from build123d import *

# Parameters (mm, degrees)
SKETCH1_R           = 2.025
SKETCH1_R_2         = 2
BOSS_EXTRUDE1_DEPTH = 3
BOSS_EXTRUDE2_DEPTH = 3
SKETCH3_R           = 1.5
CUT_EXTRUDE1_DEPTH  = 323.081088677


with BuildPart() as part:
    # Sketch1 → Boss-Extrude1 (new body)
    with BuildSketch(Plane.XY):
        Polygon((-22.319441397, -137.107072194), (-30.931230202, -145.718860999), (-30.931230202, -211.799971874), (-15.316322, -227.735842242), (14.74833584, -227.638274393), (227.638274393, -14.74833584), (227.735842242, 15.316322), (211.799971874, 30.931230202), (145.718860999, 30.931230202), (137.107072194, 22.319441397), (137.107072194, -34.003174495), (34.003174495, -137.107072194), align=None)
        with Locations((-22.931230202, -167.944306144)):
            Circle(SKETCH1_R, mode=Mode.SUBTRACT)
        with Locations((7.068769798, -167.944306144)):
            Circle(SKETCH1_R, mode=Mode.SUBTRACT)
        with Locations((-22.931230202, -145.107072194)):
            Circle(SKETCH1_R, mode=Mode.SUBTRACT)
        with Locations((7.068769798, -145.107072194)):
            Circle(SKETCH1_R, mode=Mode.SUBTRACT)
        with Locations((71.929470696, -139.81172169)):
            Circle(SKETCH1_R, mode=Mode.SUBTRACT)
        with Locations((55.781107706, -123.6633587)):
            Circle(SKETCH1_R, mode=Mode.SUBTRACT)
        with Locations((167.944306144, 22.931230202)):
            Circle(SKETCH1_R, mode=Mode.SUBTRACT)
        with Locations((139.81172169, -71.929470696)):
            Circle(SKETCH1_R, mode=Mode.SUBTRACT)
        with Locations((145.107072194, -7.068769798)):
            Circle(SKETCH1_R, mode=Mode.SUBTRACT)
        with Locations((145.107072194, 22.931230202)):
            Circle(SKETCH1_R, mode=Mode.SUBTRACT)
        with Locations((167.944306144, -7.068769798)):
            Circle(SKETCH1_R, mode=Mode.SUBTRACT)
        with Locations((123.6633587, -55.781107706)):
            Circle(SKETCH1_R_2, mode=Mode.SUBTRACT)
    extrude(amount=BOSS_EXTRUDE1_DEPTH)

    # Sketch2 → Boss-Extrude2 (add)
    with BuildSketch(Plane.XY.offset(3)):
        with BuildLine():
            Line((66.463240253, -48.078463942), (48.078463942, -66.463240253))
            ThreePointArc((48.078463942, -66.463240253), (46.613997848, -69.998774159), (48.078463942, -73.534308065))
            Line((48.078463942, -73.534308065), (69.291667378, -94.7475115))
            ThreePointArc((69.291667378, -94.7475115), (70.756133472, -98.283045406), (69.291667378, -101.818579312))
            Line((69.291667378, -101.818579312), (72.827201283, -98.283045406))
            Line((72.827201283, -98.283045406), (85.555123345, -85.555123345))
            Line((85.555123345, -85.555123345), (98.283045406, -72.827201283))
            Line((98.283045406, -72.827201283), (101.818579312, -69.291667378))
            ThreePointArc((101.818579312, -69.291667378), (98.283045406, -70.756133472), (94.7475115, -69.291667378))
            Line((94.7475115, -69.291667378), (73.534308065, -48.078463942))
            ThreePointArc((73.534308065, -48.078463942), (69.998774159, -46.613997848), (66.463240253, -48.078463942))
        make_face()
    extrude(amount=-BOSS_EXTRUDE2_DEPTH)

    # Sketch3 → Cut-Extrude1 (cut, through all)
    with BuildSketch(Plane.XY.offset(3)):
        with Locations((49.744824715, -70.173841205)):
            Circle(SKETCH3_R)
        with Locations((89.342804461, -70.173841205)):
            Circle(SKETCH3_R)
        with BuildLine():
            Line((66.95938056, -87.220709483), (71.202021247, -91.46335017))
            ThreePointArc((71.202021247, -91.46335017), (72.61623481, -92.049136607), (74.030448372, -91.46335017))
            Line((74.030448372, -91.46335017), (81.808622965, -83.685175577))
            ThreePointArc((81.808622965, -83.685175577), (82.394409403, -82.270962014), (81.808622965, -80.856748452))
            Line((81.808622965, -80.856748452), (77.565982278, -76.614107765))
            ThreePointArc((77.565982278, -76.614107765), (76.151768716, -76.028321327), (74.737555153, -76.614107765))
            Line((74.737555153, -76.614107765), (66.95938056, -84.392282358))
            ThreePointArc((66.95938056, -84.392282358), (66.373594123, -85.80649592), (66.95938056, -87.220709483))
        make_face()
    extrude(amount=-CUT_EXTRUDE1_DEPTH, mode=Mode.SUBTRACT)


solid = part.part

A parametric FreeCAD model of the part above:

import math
import FreeCAD as App
import Part
import Sketcher
from FreeCAD import Vector
Q = App.Units.Quantity

doc = App.newDocument("Part")
body = doc.addObject("PartDesign::Body", "Body")

# Sketch on XY plane
sketch1 = body.newObject("Sketcher::SketchObject", "Sketch")
sketch1.AttachmentSupport = (doc.getObject("XY_Plane"), [""])
sketch1.MapMode = "FlatFace"
sketch1.addGeometry([
    Part.LineSegment(Vector(-22.3, -137.1, 0), Vector(-30.9, -145.7, 0)),  # 0
    Part.LineSegment(Vector(-30.9, -145.7, 0), Vector(-30.9, -211.8, 0)),  # 1
    Part.LineSegment(Vector(-30.9, -211.8, 0), Vector(-15.3, -227.7, 0)),  # 2
    Part.LineSegment(Vector(-15.3, -227.7, 0), Vector(14.7, -227.6, 0)),  # 3
    Part.LineSegment(Vector(14.7, -227.6, 0), Vector(227.6, -14.7, 0)),  # 4
    Part.LineSegment(Vector(227.6, -14.7, 0), Vector(227.7, 15.3, 0)),  # 5
    Part.LineSegment(Vector(227.7, 15.3, 0), Vector(211.8, 30.9, 0)),  # 6
    Part.LineSegment(Vector(211.8, 30.9, 0), Vector(145.7, 30.9, 0)),  # 7
    Part.LineSegment(Vector(145.7, 30.9, 0), Vector(137.1, 22.3, 0)),  # 8
    Part.LineSegment(Vector(137.1, 22.3, 0), Vector(137.1, -34, 0)),  # 9
    Part.LineSegment(Vector(137.1, -34, 0), Vector(34, -137.1, 0)),  # 10
    Part.LineSegment(Vector(34, -137.1, 0), Vector(-22.3, -137.1, 0)),  # 11
    Part.Circle(Vector(-22.9, -167.9, 0), Vector(0, 0, 1), 2),  # 12
    Part.Circle(Vector(7.1, -167.9, 0), Vector(0, 0, 1), 2),  # 13
    Part.Circle(Vector(-22.9, -145.1, 0), Vector(0, 0, 1), 2),  # 14
    Part.Circle(Vector(7.1, -145.1, 0), Vector(0, 0, 1), 2),  # 15
    Part.Circle(Vector(71.9, -139.8, 0), Vector(0, 0, 1), 2),  # 16
    Part.Circle(Vector(55.8, -123.7, 0), Vector(0, 0, 1), 2),  # 17
    Part.Circle(Vector(139.8, -71.9, 0), Vector(0, 0, 1), 2),  # 18
    Part.Circle(Vector(123.7, -55.8, 0), Vector(0, 0, 1), 2),  # 19
    Part.Circle(Vector(145.1, -7.1, 0), Vector(0, 0, 1), 2),  # 20
    Part.Circle(Vector(167.9, -7.1, 0), Vector(0, 0, 1), 2),  # 21
    Part.Circle(Vector(145.1, 22.9, 0), Vector(0, 0, 1), 2),  # 22
    Part.Circle(Vector(167.9, 22.9, 0), Vector(0, 0, 1), 2),  # 23
], False)
sketch1.addConstraint([
    Sketcher.Constraint("Coincident", 0, 2, 1, 1),
    Sketcher.Constraint("Coincident", 1, 2, 2, 1),
    Sketcher.Constraint("Coincident", 2, 2, 3, 1),
    Sketcher.Constraint("Coincident", 3, 2, 4, 1),
    Sketcher.Constraint("Coincident", 4, 2, 5, 1),
    Sketcher.Constraint("Coincident", 5, 2, 6, 1),
    Sketcher.Constraint("Coincident", 6, 2, 7, 1),
    Sketcher.Constraint("Coincident", 7, 2, 8, 1),
    Sketcher.Constraint("Coincident", 8, 2, 9, 1),
    Sketcher.Constraint("Coincident", 9, 2, 10, 1),
    Sketcher.Constraint("Coincident", 10, 2, 11, 1),
    Sketcher.Constraint("Coincident", 11, 2, 0, 1),
    Sketcher.Constraint("Vertical", 1),
    Sketcher.Constraint("Horizontal", 7),
    Sketcher.Constraint("Vertical", 9),
    Sketcher.Constraint("Horizontal", 11),
    Sketcher.Constraint("Equal", 12, 13),
    Sketcher.Constraint("Equal", 13, 14),
    Sketcher.Constraint("Equal", 14, 15),
    Sketcher.Constraint("Equal", 15, 16),
    Sketcher.Constraint("Equal", 16, 17),
    Sketcher.Constraint("Equal", 17, 18),
    Sketcher.Constraint("Equal", 18, 20),
    Sketcher.Constraint("Equal", 20, 21),
    Sketcher.Constraint("Equal", 21, 22),
    Sketcher.Constraint("Equal", 22, 23),
    Sketcher.Constraint("Parallel", 0, 4),
    Sketcher.Constraint("Parallel", 4, 8),
    Sketcher.Constraint("Parallel", 8, 10),
    Sketcher.Constraint("Horizontal", 12, 3, 13, 3),
    Sketcher.Constraint("Horizontal", 14, 3, 15, 3),
    Sketcher.Constraint("Horizontal", 20, 3, 21, 3),
    Sketcher.Constraint("Horizontal", 22, 3, 23, 3),
    Sketcher.Constraint("Vertical", 12, 3, 14, 3),
    Sketcher.Constraint("Vertical", 13, 3, 15, 3),
    Sketcher.Constraint("Vertical", 20, 3, 22, 3),
    Sketcher.Constraint("Vertical", 21, 3, 23, 3),
    Sketcher.Constraint("Equal", 7, 1),
    Sketcher.Constraint("Equal", 11, 9),
    Sketcher.Constraint("Equal", 3, 5),
    Sketcher.Constraint("Equal", 2, 6),
    Sketcher.Constraint("Equal", 0, 8),
    Sketcher.Constraint("Diameter", 19, 4.0),
    Sketcher.Constraint("Diameter", 12, 4.05),
    Sketcher.Constraint("Angle", 0, Q("-135 deg")),
    Sketcher.Constraint("DistanceX", 12, 3, 13, 3, 30.0),
    Sketcher.Constraint("DistanceY", 20, 3, 22, 3, 30.0),
    Sketcher.Constraint("DistanceX", 0, 2, 14, 3, 8.0),
    Sketcher.Constraint("DistanceY", 23, 3, 6, 2, 8.0),
    Sketcher.Constraint("DistanceX", 8, 2, 22, 3, 8.0),
    Sketcher.Constraint("DistanceY", 15, 3, 10, 2, 8.0),
    Sketcher.Constraint("DistanceX", 7, 2, 7, 1, 66.081111),
    Sketcher.Constraint("DistanceX", 15, 3, 16, 3, 64.860701),
    Sketcher.Constraint("DistanceY", 15, 3, 18, 3, 73.177601),
    Sketcher.Constraint("DistanceY", 13, 3, 19, 3, 112.163198),
    Sketcher.Constraint("DistanceY", 18, 3, 20, 3, 64.860701),
    Sketcher.Constraint("DistanceX", 17, 3, 21, 3, 112.163198),
    Sketcher.Constraint("DistanceY", 1, 2, 14, 3, 66.6929),
    Sketcher.Constraint("Distance", 4, 301.071838),
    Sketcher.Constraint("Distance", 10, 145.81093),
    Sketcher.Constraint("DistanceX", 12, 3, -1, 1, 22.93123),
    Sketcher.Constraint("DistanceY", 16, 3, -1, 1, 139.811722),
    Sketcher.Constraint("DistanceY", 17, 3, -1, 1, 123.663359),
    Sketcher.Constraint("DistanceX", -1, 1, 18, 3, 139.811722),
    Sketcher.Constraint("DistanceY", 18, 3, -1, 1, 71.929471),
    Sketcher.Constraint("DistanceX", -1, 1, 19, 3, 123.663359),
    Sketcher.Constraint("DistanceX", 17, 3, 19, 3, 67.882251),
    Sketcher.Constraint("DistanceY", 17, 3, 19, 3, 67.882251),
    Sketcher.Constraint("DistanceX", 1, 2, 2, 2, 15.614908),
    Sketcher.Constraint("DistanceY", 2, 2, 1, 2, 15.93587),
    Sketcher.Constraint("DistanceY", 3, 2, 13, 3, 59.693968),
    Sketcher.Constraint("DistanceX", 21, 3, 4, 2, 59.693968),
])
pad1 = body.newObject("PartDesign::Pad", "Pad")
pad1.Profile = sketch1
pad1.Length = 3

# Sketch on XY plane
sketch2 = body.newObject("Sketcher::SketchObject", "Sketch001")
sketch2.AttachmentSupport = (doc.getObject("XY_Plane"), [""])
sketch2.MapMode = "FlatFace"
sketch2.AttachmentOffset = App.Placement(Vector(0, 0, 3), App.Rotation())
sketch2.addGeometry([
    Part.LineSegment(Vector(66.5, -48.1, 0), Vector(48.1, -66.5, 0)),  # 0
    Part.ArcOfCircle(Part.Circle(Vector(51.6, -70, 0), Vector(0, 0, 1), 5), math.radians(135), math.radians(225)),  # 1
    Part.LineSegment(Vector(48.1, -73.5, 0), Vector(69.3, -94.7, 0)),  # 2
    Part.ArcOfCircle(Part.Circle(Vector(65.8, -98.3, 0), Vector(0, 0, 1), 5), math.radians(-45), math.radians(45)),  # 3
    Part.LineSegment(Vector(69.3, -101.8, 0), Vector(72.8, -98.3, 0)),  # 4
    Part.LineSegment(Vector(72.8, -98.3, 0), Vector(85.6, -85.6, 0)),  # 5
    Part.LineSegment(Vector(85.6, -85.6, 0), Vector(98.3, -72.8, 0)),  # 6
    Part.LineSegment(Vector(98.3, -72.8, 0), Vector(101.8, -69.3, 0)),  # 7
    Part.ArcOfCircle(Part.Circle(Vector(98.3, -65.8, 0), Vector(0, 0, 1), 5), math.radians(-135), math.radians(-45)),  # 8
    Part.LineSegment(Vector(94.7, -69.3, 0), Vector(73.5, -48.1, 0)),  # 9
    Part.ArcOfCircle(Part.Circle(Vector(70, -51.6, 0), Vector(0, 0, 1), 5), math.radians(45), math.radians(135)),  # 10
], False)
sketch2.addConstraint([
    Sketcher.Constraint("Tangent", 0, 2, 1, 1),
    Sketcher.Constraint("Tangent", 1, 2, 2, 1),
    Sketcher.Constraint("Tangent", 2, 2, 3, 2),
    Sketcher.Constraint("Tangent", 3, 1, 4, 1),
    Sketcher.Constraint("Coincident", 4, 2, 5, 1),
    Sketcher.Constraint("Coincident", 5, 2, 6, 1),
    Sketcher.Constraint("Coincident", 6, 2, 7, 1),
    Sketcher.Constraint("Tangent", 7, 2, 8, 2),
    Sketcher.Constraint("Tangent", 8, 1, 9, 1),
    Sketcher.Constraint("Tangent", 9, 2, 10, 1),
    Sketcher.Constraint("Tangent", 10, 2, 0, 1),
    Sketcher.Constraint("Equal", 1, 3),
    Sketcher.Constraint("Equal", 3, 8),
    Sketcher.Constraint("Equal", 8, 10),
    Sketcher.Constraint("Perpendicular", 0, 2),
    Sketcher.Constraint("Perpendicular", 2, 4),
    Sketcher.Constraint("Parallel", 4, 5),
    Sketcher.Constraint("Parallel", 5, 6),
    Sketcher.Constraint("Parallel", 6, 7),
    Sketcher.Constraint("Perpendicular", 7, 9),
    Sketcher.Constraint("Horizontal", 3, 3, 4, 2),
    Sketcher.Constraint("Horizontal", 7, 2, 8, 1),
    Sketcher.Constraint("Vertical", 8, 3, 6, 2),
    Sketcher.Constraint("Equal", 5, 6),
    Sketcher.Constraint("Radius", 1, 5.0),
    Sketcher.Constraint("Distance", 0, 26.0),
    Sketcher.Constraint("Distance", 2, 30.0),
    Sketcher.Constraint("DistanceX", -1, 1, 4, 2, 72.827201),
    Sketcher.Constraint("DistanceY", 6, 2, -1, 1, 72.827201),
])
pad2 = body.newObject("PartDesign::Pad", "Pad001")
pad2.Profile = sketch2
pad2.Length = 3
pad2.Reversed = True

# Sketch on XY plane
sketch3 = body.newObject("Sketcher::SketchObject", "Sketch002")
sketch3.AttachmentSupport = (doc.getObject("XY_Plane"), [""])
sketch3.MapMode = "FlatFace"
sketch3.AttachmentOffset = App.Placement(Vector(0, 0, 3), App.Rotation())
sketch3.addGeometry([
    Part.Circle(Vector(49.7, -70.2, 0), Vector(0, 0, 1), 1.5),  # 0
    Part.Circle(Vector(89.3, -70.2, 0), Vector(0, 0, 1), 1.5),  # 1
    Part.LineSegment(Vector(67, -87.2, 0), Vector(71.2, -91.5, 0)),  # 2
    Part.ArcOfCircle(Part.Circle(Vector(72.6, -90, 0), Vector(0, 0, 1), 2), math.radians(-135), math.radians(-45)),  # 3
    Part.LineSegment(Vector(74, -91.5, 0), Vector(81.8, -83.7, 0)),  # 4
    Part.ArcOfCircle(Part.Circle(Vector(80.4, -82.3, 0), Vector(0, 0, 1), 2), math.radians(-45), math.radians(45)),  # 5
    Part.LineSegment(Vector(81.8, -80.9, 0), Vector(77.6, -76.6, 0)),  # 6
    Part.ArcOfCircle(Part.Circle(Vector(76.2, -78, 0), Vector(0, 0, 1), 2), math.radians(45), math.radians(135)),  # 7
    Part.LineSegment(Vector(74.7, -76.6, 0), Vector(67, -84.4, 0)),  # 8
    Part.ArcOfCircle(Part.Circle(Vector(68.4, -85.8, 0), Vector(0, 0, 1), 2), math.radians(135), math.radians(225)),  # 9
], False)
sketch3.addConstraint([
    Sketcher.Constraint("Tangent", 2, 2, 3, 1),
    Sketcher.Constraint("Tangent", 3, 2, 4, 1),
    Sketcher.Constraint("Tangent", 4, 2, 5, 1),
    Sketcher.Constraint("Tangent", 5, 2, 6, 1),
    Sketcher.Constraint("Tangent", 6, 2, 7, 1),
    Sketcher.Constraint("Tangent", 7, 2, 8, 1),
    Sketcher.Constraint("Tangent", 8, 2, 9, 1),
    Sketcher.Constraint("Tangent", 9, 2, 2, 1),
    Sketcher.Constraint("Equal", 0, 1),
    Sketcher.Constraint("Equal", 3, 5),
    Sketcher.Constraint("Equal", 5, 7),
    Sketcher.Constraint("Equal", 7, 9),
    Sketcher.Constraint("Perpendicular", 2, 4),
    Sketcher.Constraint("Perpendicular", 4, 6),
    Sketcher.Constraint("Perpendicular", 6, 8),
    Sketcher.Constraint("Horizontal", 0, 3, 1, 3),
    Sketcher.Constraint("Horizontal", 2, 2, 3, 2),
    Sketcher.Constraint("Diameter", 0, 3.0),
    Sketcher.Constraint("Radius", 3, 2.0),
    Sketcher.Constraint("Distance", 2, 6.0),
    Sketcher.Constraint("Distance", 4, 11.0),
    Sketcher.Constraint("DistanceY", 0, 3, -1, 1, 70.173841),
    Sketcher.Constraint("DistanceX", -1, 1, 5, 3, 80.394409),
    Sketcher.Constraint("DistanceY", 7, 3, -1, 1, 78.028321),
    Sketcher.Constraint("DistanceX", 0, 3, 1, 3, 39.59798),
    Sketcher.Constraint("DistanceX", 3, 3, 1, 3, 16.72657),
])
pocket1 = body.newObject("PartDesign::Pocket", "Pocket")
pocket1.Profile = sketch3
pocket1.Type = "ThroughAll"

doc.recompute()
